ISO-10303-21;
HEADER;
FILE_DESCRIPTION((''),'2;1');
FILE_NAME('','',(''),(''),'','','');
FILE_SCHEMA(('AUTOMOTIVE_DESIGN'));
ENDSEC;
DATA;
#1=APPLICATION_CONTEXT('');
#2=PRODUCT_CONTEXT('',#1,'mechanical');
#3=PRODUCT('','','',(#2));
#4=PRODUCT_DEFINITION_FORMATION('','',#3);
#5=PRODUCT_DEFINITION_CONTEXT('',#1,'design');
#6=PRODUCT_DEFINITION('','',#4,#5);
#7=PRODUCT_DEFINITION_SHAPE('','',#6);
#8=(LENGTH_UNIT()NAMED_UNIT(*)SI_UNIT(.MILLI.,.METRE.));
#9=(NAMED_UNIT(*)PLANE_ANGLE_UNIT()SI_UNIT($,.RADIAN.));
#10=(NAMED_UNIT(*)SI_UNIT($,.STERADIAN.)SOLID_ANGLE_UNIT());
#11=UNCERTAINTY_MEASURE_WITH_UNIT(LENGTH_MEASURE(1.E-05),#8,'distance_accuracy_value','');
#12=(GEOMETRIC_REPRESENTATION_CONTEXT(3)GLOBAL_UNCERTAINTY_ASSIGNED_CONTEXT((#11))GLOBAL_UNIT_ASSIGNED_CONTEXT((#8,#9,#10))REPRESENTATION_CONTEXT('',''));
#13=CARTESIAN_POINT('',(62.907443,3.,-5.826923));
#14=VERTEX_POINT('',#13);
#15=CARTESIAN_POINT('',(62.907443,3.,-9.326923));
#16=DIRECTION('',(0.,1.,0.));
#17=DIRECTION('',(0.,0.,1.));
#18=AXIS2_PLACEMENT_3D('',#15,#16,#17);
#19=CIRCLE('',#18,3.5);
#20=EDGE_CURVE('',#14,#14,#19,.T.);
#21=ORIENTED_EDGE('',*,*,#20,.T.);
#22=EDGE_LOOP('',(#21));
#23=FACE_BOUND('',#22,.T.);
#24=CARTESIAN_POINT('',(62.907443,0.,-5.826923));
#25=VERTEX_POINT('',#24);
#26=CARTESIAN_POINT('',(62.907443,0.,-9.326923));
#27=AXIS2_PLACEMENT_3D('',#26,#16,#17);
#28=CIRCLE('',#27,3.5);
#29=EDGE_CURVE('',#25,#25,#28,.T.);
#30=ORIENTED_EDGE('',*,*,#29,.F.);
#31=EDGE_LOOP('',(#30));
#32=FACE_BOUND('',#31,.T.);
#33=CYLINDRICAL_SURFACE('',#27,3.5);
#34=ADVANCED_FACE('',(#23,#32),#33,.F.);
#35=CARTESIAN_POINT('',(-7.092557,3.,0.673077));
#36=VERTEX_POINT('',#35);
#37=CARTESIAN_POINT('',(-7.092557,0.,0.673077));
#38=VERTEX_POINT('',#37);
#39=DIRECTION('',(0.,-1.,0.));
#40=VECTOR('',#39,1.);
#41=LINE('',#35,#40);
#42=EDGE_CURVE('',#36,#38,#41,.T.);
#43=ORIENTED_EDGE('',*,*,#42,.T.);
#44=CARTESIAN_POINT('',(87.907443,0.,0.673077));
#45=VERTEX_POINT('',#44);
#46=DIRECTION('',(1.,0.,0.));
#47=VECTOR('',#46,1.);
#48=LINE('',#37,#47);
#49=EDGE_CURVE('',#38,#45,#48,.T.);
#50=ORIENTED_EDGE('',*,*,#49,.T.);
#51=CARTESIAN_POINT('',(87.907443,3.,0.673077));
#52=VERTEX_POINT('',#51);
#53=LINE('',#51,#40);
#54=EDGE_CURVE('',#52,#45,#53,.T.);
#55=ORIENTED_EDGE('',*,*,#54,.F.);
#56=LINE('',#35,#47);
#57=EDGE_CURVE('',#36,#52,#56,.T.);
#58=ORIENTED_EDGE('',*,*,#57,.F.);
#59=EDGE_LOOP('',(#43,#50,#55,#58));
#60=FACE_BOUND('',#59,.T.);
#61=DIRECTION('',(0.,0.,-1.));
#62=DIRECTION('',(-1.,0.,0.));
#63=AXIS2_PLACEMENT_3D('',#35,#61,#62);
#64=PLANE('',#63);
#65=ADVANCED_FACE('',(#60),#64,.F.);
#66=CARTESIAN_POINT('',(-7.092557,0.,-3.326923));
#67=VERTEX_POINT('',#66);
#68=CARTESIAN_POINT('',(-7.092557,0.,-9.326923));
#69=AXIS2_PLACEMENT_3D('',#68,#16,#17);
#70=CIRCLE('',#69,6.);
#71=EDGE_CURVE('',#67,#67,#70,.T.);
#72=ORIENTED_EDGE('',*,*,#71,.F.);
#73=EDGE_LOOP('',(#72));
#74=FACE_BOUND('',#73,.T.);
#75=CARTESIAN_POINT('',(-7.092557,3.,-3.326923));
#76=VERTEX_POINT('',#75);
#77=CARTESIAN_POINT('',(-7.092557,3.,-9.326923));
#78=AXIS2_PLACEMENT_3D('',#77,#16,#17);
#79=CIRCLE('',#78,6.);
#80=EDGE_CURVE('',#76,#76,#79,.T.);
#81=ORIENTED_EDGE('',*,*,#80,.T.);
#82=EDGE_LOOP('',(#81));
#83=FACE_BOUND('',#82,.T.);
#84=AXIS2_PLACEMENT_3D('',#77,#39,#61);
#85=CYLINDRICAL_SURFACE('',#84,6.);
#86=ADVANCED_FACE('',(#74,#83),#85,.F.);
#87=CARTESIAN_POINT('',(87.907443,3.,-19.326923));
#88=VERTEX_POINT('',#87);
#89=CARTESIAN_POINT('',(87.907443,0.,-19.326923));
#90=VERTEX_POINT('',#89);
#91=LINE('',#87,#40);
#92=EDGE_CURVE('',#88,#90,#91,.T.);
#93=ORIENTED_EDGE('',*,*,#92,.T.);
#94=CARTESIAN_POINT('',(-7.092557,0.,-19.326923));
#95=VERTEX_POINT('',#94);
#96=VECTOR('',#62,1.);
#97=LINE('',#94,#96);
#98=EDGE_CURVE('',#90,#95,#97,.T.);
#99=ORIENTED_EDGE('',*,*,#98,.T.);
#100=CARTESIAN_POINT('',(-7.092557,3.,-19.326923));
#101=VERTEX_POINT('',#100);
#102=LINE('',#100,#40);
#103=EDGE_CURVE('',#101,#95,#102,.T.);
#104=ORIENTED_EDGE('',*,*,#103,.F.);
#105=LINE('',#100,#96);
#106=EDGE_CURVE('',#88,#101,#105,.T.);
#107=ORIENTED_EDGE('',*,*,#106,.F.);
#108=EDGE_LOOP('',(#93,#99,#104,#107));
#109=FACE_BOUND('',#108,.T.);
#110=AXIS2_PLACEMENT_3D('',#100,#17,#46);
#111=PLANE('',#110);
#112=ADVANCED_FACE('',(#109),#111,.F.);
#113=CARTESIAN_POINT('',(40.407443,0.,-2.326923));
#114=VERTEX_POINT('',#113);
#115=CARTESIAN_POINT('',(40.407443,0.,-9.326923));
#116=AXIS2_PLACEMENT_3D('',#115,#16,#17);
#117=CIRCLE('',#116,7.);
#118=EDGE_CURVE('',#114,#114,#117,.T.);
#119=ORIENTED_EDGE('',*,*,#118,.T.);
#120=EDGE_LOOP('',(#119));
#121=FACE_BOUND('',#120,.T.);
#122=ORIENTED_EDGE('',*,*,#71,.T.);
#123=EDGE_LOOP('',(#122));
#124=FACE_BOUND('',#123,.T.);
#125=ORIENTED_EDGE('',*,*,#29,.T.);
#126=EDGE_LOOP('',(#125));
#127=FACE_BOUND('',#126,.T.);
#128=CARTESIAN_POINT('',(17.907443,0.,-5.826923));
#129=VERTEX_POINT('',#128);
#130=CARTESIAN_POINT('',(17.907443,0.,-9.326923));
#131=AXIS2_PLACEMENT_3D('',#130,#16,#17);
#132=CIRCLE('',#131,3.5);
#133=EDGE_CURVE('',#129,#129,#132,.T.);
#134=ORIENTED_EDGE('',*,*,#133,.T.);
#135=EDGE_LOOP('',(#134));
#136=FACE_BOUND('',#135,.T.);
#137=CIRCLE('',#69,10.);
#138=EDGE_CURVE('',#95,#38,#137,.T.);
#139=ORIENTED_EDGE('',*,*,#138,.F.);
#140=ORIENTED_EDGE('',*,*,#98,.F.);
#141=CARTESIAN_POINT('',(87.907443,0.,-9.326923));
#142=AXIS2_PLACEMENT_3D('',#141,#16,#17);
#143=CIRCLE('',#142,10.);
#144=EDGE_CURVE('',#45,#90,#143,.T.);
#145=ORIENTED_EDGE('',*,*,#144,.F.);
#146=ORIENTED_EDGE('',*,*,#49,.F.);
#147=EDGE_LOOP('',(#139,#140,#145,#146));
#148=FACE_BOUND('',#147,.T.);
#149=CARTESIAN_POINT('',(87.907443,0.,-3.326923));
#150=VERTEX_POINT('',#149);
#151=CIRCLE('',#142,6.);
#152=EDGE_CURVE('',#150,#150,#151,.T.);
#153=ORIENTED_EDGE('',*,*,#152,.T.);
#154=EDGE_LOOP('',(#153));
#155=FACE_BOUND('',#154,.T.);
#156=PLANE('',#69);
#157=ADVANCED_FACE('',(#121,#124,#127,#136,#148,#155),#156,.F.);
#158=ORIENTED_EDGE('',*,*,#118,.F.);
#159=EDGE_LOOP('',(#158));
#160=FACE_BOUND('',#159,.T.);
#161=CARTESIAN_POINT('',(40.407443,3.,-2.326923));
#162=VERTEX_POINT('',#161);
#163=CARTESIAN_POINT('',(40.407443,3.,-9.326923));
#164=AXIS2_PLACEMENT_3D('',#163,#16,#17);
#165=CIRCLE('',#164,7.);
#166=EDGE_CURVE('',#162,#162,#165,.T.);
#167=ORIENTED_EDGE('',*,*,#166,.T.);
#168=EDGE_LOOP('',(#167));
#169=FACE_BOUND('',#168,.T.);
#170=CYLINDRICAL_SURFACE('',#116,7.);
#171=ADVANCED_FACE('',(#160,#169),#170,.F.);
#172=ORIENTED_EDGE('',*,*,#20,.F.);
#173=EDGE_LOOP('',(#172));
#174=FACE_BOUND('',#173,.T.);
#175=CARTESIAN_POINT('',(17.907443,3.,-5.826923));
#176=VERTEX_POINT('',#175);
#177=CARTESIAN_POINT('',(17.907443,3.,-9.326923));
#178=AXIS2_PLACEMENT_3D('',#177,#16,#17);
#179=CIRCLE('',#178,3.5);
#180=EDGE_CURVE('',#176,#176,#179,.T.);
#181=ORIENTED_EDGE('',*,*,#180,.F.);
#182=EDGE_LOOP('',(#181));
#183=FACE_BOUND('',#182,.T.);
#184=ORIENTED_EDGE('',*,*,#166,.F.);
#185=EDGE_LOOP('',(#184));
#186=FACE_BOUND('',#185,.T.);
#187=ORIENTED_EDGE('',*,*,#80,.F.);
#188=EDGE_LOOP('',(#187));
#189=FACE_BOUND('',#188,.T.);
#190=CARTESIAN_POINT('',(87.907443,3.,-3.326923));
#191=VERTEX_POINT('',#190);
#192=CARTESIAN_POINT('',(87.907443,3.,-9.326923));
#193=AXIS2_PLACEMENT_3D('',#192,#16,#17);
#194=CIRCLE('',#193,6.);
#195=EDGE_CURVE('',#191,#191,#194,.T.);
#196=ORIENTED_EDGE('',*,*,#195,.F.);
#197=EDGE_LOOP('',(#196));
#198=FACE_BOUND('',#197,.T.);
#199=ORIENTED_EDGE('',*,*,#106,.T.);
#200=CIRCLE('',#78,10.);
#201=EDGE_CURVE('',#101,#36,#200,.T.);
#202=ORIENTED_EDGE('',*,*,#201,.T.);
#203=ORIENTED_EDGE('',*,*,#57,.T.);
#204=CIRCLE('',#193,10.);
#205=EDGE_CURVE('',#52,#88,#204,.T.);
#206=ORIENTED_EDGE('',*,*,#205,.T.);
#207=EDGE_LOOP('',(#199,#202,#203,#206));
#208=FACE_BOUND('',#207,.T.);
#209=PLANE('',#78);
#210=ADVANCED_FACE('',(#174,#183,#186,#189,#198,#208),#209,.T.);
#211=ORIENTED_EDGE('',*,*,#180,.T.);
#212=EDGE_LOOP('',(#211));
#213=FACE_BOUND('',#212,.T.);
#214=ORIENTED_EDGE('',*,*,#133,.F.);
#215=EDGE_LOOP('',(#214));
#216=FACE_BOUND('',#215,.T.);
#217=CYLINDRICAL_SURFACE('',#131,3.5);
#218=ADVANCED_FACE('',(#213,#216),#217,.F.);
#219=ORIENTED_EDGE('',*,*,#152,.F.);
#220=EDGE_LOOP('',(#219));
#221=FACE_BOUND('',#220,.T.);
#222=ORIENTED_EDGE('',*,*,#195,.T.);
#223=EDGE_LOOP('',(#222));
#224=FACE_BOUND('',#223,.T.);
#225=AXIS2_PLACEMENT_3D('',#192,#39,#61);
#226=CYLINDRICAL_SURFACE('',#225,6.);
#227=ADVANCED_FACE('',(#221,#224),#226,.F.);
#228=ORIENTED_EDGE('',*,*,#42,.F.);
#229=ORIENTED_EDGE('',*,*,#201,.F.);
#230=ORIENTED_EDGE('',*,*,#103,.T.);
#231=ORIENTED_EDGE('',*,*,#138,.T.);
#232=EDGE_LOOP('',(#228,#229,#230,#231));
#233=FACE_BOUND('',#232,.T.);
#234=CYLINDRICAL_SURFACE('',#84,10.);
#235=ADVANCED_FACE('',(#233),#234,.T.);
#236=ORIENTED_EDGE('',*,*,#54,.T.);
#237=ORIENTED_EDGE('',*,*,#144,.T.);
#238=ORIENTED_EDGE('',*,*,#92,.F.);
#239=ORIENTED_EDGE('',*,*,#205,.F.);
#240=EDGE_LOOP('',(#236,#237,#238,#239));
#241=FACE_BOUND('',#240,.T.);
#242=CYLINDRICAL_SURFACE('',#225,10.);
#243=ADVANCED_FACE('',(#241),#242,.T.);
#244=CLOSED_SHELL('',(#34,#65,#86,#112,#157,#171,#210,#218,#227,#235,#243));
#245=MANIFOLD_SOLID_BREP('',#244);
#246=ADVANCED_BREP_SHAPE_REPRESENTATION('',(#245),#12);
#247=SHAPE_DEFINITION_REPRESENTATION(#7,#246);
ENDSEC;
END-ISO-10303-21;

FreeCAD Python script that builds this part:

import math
import FreeCAD as App
import Part
import Sketcher

V = App.Vector
Q = App.Units.Quantity

doc = App.newDocument("Part")
body = doc.addObject("PartDesign::Body", "Body")

sketch1 = body.newObject("Sketcher::SketchObject", "Sketch")
sketch1.AttachmentSupport = (doc.getObject("XZ_Plane"), [""])
sketch1.MapMode = "FlatFace"
sketch1.addGeometry(Part.LineSegment(V(88, -19, 0), V(-7, -19, 0)), False)
sketch1.addGeometry(Part.ArcOfCircle(Part.Circle(V(-7, -9, 0), V(0, 0, 1), 10), math.radians(90), math.radians(270)), False)
sketch1.addGeometry(Part.LineSegment(V(-7, 1, 0), V(88, 1, 0)), False)
sketch1.addGeometry(Part.ArcOfCircle(Part.Circle(V(88, -9, 0), V(0, 0, 1), 10), math.radians(-90), math.radians(90)), False)
sketch1.addGeometry(Part.Circle(V(88, -9, 0), V(0, 0, 1), 6), False)
sketch1.addGeometry(Part.Circle(V(-7, -9, 0), V(0, 0, 1), 6), False)
sketch1.addConstraint(Sketcher.Constraint("Tangent", 0, 2, 1, 2))
sketch1.addConstraint(Sketcher.Constraint("Tangent", 1, 1, 2, 1))
sketch1.addConstraint(Sketcher.Constraint("Tangent", 2, 2, 3, 2))
sketch1.addConstraint(Sketcher.Constraint("Tangent", 3, 1, 0, 1))
sketch1.addConstraint(Sketcher.Constraint("Horizontal", 0))
sketch1.addConstraint(Sketcher.Constraint("Horizontal", 2))
sketch1.addConstraint(Sketcher.Constraint("Coincident", 4, 3, 3, 3))
sketch1.addConstraint(Sketcher.Constraint("Coincident", 5, 3, 1, 3))
sketch1.addConstraint(Sketcher.Constraint("Equal", 4, 5))
sketch1.addConstraint(Sketcher.Constraint("Diameter", 4, Q("12 mm")))
sketch1.addConstraint(Sketcher.Constraint("Radius", 1, Q("10 mm")))
sketch1.addConstraint(Sketcher.Constraint("DistanceX", 0, 2, 0, 1, Q("95 mm")))
sketch1.addConstraint(Sketcher.Constraint("DistanceX", 1, 3, -1, 1, Q("7.092557 mm")))
sketch1.addConstraint(Sketcher.Constraint("DistanceY", 1, 3, -1, 1, Q("9.326923 mm")))
pad1 = body.newObject("PartDesign::Pad", "Pad")
pad1.Profile = sketch1
pad1.Length = 3
pad1.Reversed = True

sketch2 = body.newObject("Sketcher::SketchObject", "Sketch001")
sketch2.AttachmentSupport = (doc.getObject("XZ_Plane"), [""])
sketch2.MapMode = "FlatFace"
sketch2.AttachmentOffset = App.Placement(V(0, 0, -3), App.Rotation())
sketch2.addGeometry(Part.Circle(V(40, -9, 0), V(0, 0, 1), 7), False)
sketch2.addConstraint(Sketcher.Constraint("Diameter", 0, Q("14 mm")))
sketch2.addConstraint(Sketcher.Constraint("DistanceX", -1, 1, 0, 3, Q("40.407443 mm")))
sketch2.addConstraint(Sketcher.Constraint("DistanceY", 0, 3, -1, 1, Q("9.326923 mm")))
pocket1 = body.newObject("PartDesign::Pocket", "Pocket")
pocket1.Profile = sketch2
pocket1.Type = "ThroughAll"
pocket1.Reversed = True

sketch3 = body.newObject("Sketcher::SketchObject", "Sketch002")
sketch3.AttachmentSupport = (doc.getObject("XZ_Plane"), [""])
sketch3.MapMode = "FlatFace"
sketch3.AttachmentOffset = App.Placement(V(0, 0, -3), App.Rotation())
sketch3.addGeometry(Part.Circle(V(17.9, -9.3, 0), V(0, 0, 1), 3.5), False)
sketch3.addGeometry(Part.Circle(V(62.9, -9.3, 0), V(0, 0, 1), 3.5), False)
sketch3.addConstraint(Sketcher.Constraint("Equal", 0, 1))
sketch3.addConstraint(Sketcher.Constraint("Horizontal", 0, 3, 1, 3))
sketch3.addConstraint(Sketcher.Constraint("Diameter", 0, Q("7 mm")))
sketch3.addConstraint(Sketcher.Constraint("DistanceX", 0, 3, 1, 3, Q("45 mm")))
sketch3.addConstraint(Sketcher.Constraint("DistanceX", -1, 1, 0, 3, Q("17.907443 mm")))
sketch3.addConstraint(Sketcher.Constraint("DistanceY", 0, 3, -1, 1, Q("9.326923 mm")))
pocket2 = body.newObject("PartDesign::Pocket", "Pocket001")
pocket2.Profile = sketch3
pocket2.Type = "ThroughAll"
pocket2.Reversed = True

doc.recompute()
